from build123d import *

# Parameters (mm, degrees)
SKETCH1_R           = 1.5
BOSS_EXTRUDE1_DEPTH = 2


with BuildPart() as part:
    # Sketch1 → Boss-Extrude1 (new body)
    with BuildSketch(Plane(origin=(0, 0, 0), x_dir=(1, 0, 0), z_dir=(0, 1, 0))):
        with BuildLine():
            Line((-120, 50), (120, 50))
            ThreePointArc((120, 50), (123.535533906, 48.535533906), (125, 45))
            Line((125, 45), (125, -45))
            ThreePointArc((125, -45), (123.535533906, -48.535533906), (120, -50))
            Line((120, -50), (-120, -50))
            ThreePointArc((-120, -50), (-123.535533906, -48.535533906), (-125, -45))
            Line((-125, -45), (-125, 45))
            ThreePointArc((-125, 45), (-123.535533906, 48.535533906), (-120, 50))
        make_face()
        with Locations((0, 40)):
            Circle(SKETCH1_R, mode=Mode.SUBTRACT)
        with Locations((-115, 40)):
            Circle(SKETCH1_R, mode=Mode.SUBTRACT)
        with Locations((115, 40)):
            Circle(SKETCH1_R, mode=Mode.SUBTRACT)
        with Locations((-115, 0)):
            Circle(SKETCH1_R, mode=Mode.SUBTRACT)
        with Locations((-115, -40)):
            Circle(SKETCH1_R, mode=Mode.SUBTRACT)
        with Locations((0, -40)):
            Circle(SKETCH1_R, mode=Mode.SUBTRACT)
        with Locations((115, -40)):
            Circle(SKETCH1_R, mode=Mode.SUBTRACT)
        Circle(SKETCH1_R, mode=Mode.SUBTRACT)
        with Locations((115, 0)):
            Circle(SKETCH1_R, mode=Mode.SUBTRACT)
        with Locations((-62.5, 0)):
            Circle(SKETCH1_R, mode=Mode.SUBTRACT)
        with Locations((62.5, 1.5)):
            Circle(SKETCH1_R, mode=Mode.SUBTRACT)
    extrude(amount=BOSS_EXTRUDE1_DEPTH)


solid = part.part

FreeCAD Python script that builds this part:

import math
import FreeCAD as App
import Part
import Sketcher
Q = App.Units.Quantity

doc = App.newDocument("Part")
params = doc.addObject("Spreadsheet::Sheet", "Params")
for row, (alias, value) in enumerate([
    ("sketch1_diameter", "3 mm"),
    ("sketch1_radius", "5 mm"),
    ("sketch1_width", "240 mm"),
    ("sketch1_height", "90 mm"),
    ("pad1_length", "2 mm"),
], start=1):
    params.set(f"A{row}", alias)
    params.set(f"B{row}", "=" + value)
    params.setAlias(f"B{row}", alias)

body = doc.addObject("PartDesign::Body", "Body")

sketch1 = body.newObject("Sketcher::SketchObject", "Sketch")
sketch1.AttachmentSupport = (doc.getObject("XZ_Plane"), [""])
sketch1.MapMode = "FlatFace"
sketch1.addGeometry(Part.LineSegment(App.Vector(120, -50, 0), App.Vector(-120, -50, 0)), False)
sketch1.addGeometry(Part.ArcOfCircle(Part.Circle(App.Vector(-120, -45, 0), App.Vector(0, 0, 1), 5), math.radians(180), math.radians(270)), False)
sketch1.addGeometry(Part.LineSegment(App.Vector(-125, -45, 0), App.Vector(-125, 45, 0)), False)
sketch1.addGeometry(Part.ArcOfCircle(Part.Circle(App.Vector(-120, 45, 0), App.Vector(0, 0, 1), 5), math.radians(90), math.radians(180)), False)
sketch1.addGeometry(Part.LineSegment(App.Vector(-120, 50, 0), App.Vector(120, 50, 0)), False)
sketch1.addGeometry(Part.ArcOfCircle(Part.Circle(App.Vector(120, 45, 0), App.Vector(0, 0, 1), 5), math.radians(0), math.radians(90)), False)
sketch1.addGeometry(Part.LineSegment(App.Vector(125, 45, 0), App.Vector(125, -45, 0)), False)
sketch1.addGeometry(Part.ArcOfCircle(Part.Circle(App.Vector(120, -45, 0), App.Vector(0, 0, 1), 5), math.radians(-90), math.radians(0)), False)
sketch1.addGeometry(Part.Circle(App.Vector(115, 40, 0), App.Vector(0, 0, 1), 1.5), False)
sketch1.addGeometry(Part.Circle(App.Vector(0, 40, 0), App.Vector(0, 0, 1), 1.5), False)
sketch1.addGeometry(Part.Circle(App.Vector(-115, 40, 0), App.Vector(0, 0, 1), 1.5), False)
sketch1.addGeometry(Part.Circle(App.Vector(115, 0, 0), App.Vector(0, 0, 1), 1.5), False)
sketch1.addGeometry(Part.Circle(App.Vector(62.5, -1.5, 0), App.Vector(0, 0, 1), 1.5), False)
sketch1.addGeometry(Part.Circle(App.Vector(115, -40, 0), App.Vector(0, 0, 1), 1.5), False)
sketch1.addGeometry(Part.Circle(App.Vector(0, 0, 0), App.Vector(0, 0, 1), 1.5), False)
sketch1.addGeometry(Part.Circle(App.Vector(-62.5, 0, 0), App.Vector(0, 0, 1), 1.5), False)
sketch1.addGeometry(Part.Circle(App.Vector(-115, 0, 0), App.Vector(0, 0, 1), 1.5), False)
sketch1.addGeometry(Part.Circle(App.Vector(0, -40, 0), App.Vector(0, 0, 1), 1.5), False)
sketch1.addGeometry(Part.Circle(App.Vector(-115, -40, 0), App.Vector(0, 0, 1), 1.5), False)
sketch1.addConstraint(Sketcher.Constraint("Tangent", 0, 2, 1, 2))
sketch1.addConstraint(Sketcher.Constraint("Tangent", 1, 1, 2, 1))
sketch1.addConstraint(Sketcher.Constraint("Tangent", 2, 2, 3, 2))
sketch1.addConstraint(Sketcher.Constraint("Tangent", 3, 1, 4, 1))
sketch1.addConstraint(Sketcher.Constraint("Tangent", 4, 2, 5, 2))
sketch1.addConstraint(Sketcher.Constraint("Tangent", 5, 1, 6, 1))
sketch1.addConstraint(Sketcher.Constraint("Tangent", 6, 2, 7, 2))
sketch1.addConstraint(Sketcher.Constraint("Tangent", 7, 1, 0, 1))
sketch1.addConstraint(Sketcher.Constraint("Horizontal", 0))
sketch1.addConstraint(Sketcher.Constraint("Vertical", 2))
sketch1.addConstraint(Sketcher.Constraint("Horizontal", 4))
sketch1.addConstraint(Sketcher.Constraint("Vertical", 6))
sketch1.addConstraint(Sketcher.Constraint("Coincident", 14, 3, -1, 1))
sketch1.addConstraint(Sketcher.Constraint("Equal", 1, 3))
sketch1.addConstraint(Sketcher.Constraint("Equal", 3, 5))
sketch1.addConstraint(Sketcher.Constraint("Equal", 5, 7))
sketch1.addConstraint(Sketcher.Constraint("Equal", 8, 9))
sketch1.addConstraint(Sketcher.Constraint("Equal", 9, 10))
sketch1.addConstraint(Sketcher.Constraint("Equal", 10, 11))
sketch1.addConstraint(Sketcher.Constraint("Equal", 11, 12))
sketch1.addConstraint(Sketcher.Constraint("Equal", 12, 13))
sketch1.addConstraint(Sketcher.Constraint("Equal", 13, 14))
sketch1.addConstraint(Sketcher.Constraint("Equal", 14, 15))
sketch1.addConstraint(Sketcher.Constraint("Equal", 15, 16))
sketch1.addConstraint(Sketcher.Constraint("Equal", 16, 17))
sketch1.addConstraint(Sketcher.Constraint("Equal", 17, 18))
sketch1.addConstraint(Sketcher.Constraint("Symmetric", 1, 3, 5, 3, -1, 1))
sketch1.addConstraint(Sketcher.Constraint("Symmetric", 10, 3, 13, 3, -1, 1))
sketch1.addConstraint(Sketcher.Constraint("Symmetric", 11, 3, 16, 3, -1, 1))
sketch1.addConstraint(Sketcher.Constraint("Symmetric", 9, 3, 17, 3, -1, 1))
sketch1.addConstraint(Sketcher.Constraint("Symmetric", 8, 3, 18, 3, -1, 1))
sketch1.addConstraint(Sketcher.Constraint("Symmetric", 8, 3, 10, 3, -2))
sketch1.addConstraint(Sketcher.Constraint("PointOnObject", 9, 3, -2))
sketch1.addConstraint(Sketcher.Constraint("PointOnObject", 11, 3, -1))
sketch1.addConstraint(Sketcher.Constraint("PointOnObject", 15, 3, -1))
sketch1.addConstraint(Sketcher.Constraint("Horizontal", 8, 3, 9, 3))
sketch1.addConstraint(Sketcher.Constraint("Vertical", 8, 3, 11, 3))
sketch1.addConstraint(Sketcher.Constraint("Diameter", 8, Q("3 mm")))
sketch1.addConstraint(Sketcher.Constraint("Radius", 1, Q("5 mm")))
sketch1.addConstraint(Sketcher.Constraint("DistanceX", 0, 2, 0, 1, Q("240 mm")))
sketch1.addConstraint(Sketcher.Constraint("DistanceY", 2, 1, 2, 2, Q("90 mm")))
sketch1.addConstraint(Sketcher.Constraint("DistanceX", -1, 1, 8, 3, Q("115 mm")))
sketch1.addConstraint(Sketcher.Constraint("DistanceY", -1, 1, 8, 3, Q("40 mm")))
sketch1.addConstraint(Sketcher.Constraint("DistanceX", -1, 1, 12, 3, Q("62.5 mm")))
sketch1.addConstraint(Sketcher.Constraint("DistanceY", 12, 3, -1, 1, Q("1.5 mm")))
sketch1.addConstraint(Sketcher.Constraint("DistanceX", 15, 3, -1, 1, Q("62.5 mm")))
sketch1.setExpression("Constraints[37]", "Params.sketch1_diameter")
sketch1.setExpression("Constraints[38]", "Params.sketch1_radius")
sketch1.setExpression("Constraints[39]", "Params.sketch1_width")
sketch1.setExpression("Constraints[40]", "Params.sketch1_height")
pad1 = body.newObject("PartDesign::Pad", "Pad")
pad1.Profile = sketch1
pad1.setExpression("Length", "Params.pad1_length")
pad1.Reversed = True

doc.recompute()
